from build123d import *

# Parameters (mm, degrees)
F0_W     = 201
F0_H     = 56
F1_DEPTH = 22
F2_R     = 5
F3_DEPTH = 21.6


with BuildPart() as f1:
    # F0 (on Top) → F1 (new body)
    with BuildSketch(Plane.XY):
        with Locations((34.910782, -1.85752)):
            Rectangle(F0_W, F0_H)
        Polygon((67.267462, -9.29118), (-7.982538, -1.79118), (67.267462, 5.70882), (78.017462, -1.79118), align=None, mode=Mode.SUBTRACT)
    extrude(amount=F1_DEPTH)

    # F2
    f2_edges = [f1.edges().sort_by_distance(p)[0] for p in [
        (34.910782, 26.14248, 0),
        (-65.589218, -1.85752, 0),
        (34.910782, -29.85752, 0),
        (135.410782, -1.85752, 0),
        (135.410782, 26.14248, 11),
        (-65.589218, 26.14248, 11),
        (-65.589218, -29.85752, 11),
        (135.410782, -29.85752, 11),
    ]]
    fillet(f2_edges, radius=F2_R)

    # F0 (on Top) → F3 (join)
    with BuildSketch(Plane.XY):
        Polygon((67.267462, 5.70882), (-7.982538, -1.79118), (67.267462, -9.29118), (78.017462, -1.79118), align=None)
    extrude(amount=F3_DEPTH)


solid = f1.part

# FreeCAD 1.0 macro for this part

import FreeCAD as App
import Part
import Sketcher


def edges_at(feature, points):
    """Names of the edges that pass closest to the given points."""
    edges = feature.Shape.Edges
    near = lambda p: min(range(len(edges)), key=lambda i: edges[i].distToShape(Part.Vertex(*p))[0])
    return sorted({f"Edge{near(p) + 1}" for p in points})


def add_polygon(sketch, points):
    """Adds a closed chain of lines whose ends are joined by coincident constraints."""
    first, n = sketch.GeometryCount, len(points)
    for a, b in zip(points, points[1:] + points[:1]):
        sketch.addGeometry(Part.LineSegment(App.Vector(*a, 0), App.Vector(*b, 0)), False)
    for i in range(n):
        sketch.addConstraint(Sketcher.Constraint("Coincident", first + i, 2, first + (i + 1) % n, 1))

doc = App.newDocument("Part")
params = doc.addObject("Spreadsheet::Sheet", "Params")
for row, (alias, value) in enumerate([
    ("sketch1_width", "201 mm"),
    ("sketch1_height", "56 mm"),
    ("pad1_length", "22 mm"),
    ("fillet_radius", "5 mm"),
    ("pad2_length", "21.6 mm"),
], start=1):
    params.set(f"A{row}", alias)
    params.set(f"B{row}", "=" + value)
    params.setAlias(f"B{row}", alias)

body = doc.addObject("PartDesign::Body", "Body")

sketch1 = body.newObject("Sketcher::SketchObject", "Sketch")
sketch1.AttachmentSupport = (doc.getObject("XY_Plane"), [""])
sketch1.MapMode = "FlatFace"
add_polygon(sketch1, [(-65.589218, 26.14248), (-65.589218, -29.85752), (135.410782, -29.85752), (135.410782, 26.14248)])
add_polygon(sketch1, [(78.017462, -1.79118), (67.267462, -9.29118), (-7.982538, -1.79118), (67.267462, 5.70882)])
sketch1.addConstraint(Sketcher.Constraint("Vertical", 0))
sketch1.addConstraint(Sketcher.Constraint("Horizontal", 1))
sketch1.addConstraint(Sketcher.Constraint("Vertical", 2))
sketch1.addConstraint(Sketcher.Constraint("Horizontal", 3))
sketch1.addConstraint(Sketcher.Constraint("Horizontal", 5, 2, 7, 2))
sketch1.addConstraint(Sketcher.Constraint("Vertical", 4, 2, 6, 2))
sketch1.addConstraint(Sketcher.Constraint("Equal", 5, 6))
sketch1.addConstraint(Sketcher.Constraint("DistanceX", 1, 1, 1, 2, 201.0))
sketch1.addConstraint(Sketcher.Constraint("DistanceY", 0, 2, 0, 1, 56.0))
sketch1.addConstraint(Sketcher.Constraint("DistanceY", 4, 2, 6, 2, 15.0))
sketch1.addConstraint(Sketcher.Constraint("DistanceX", 5, 2, 7, 2, 86.0))
sketch1.addConstraint(Sketcher.Constraint("DistanceX", 5, 2, 4, 2, 75.25))
sketch1.addConstraint(Sketcher.Constraint("DistanceX", 0, 2, -1, 1, 65.589218))
sketch1.addConstraint(Sketcher.Constraint("DistanceY", 0, 2, -1, 1, 29.85752))
sketch1.addConstraint(Sketcher.Constraint("DistanceX", -1, 1, 4, 2, 67.267462))
sketch1.addConstraint(Sketcher.Constraint("DistanceY", 4, 2, -1, 1, 9.29118))
sketch1.setExpression("Constraints[15]", "Params.sketch1_width")
sketch1.setExpression("Constraints[16]", "Params.sketch1_height")
pad1 = body.newObject("PartDesign::Pad", "Pad")
pad1.Profile = sketch1
pad1.setExpression("Length", "Params.pad1_length")
doc.recompute()

fillet = body.newObject("PartDesign::Fillet", "Fillet")
fillet.Base = (pad1, edges_at(pad1, [
    (34.911, 26.142, 0),
    (-65.589, -1.858, 0),
    (34.911, -29.858, 0),
    (135.411, -1.858, 0),
    (135.411, 26.142, 11),
    (-65.589, 26.142, 11),
    (-65.589, -29.858, 11),
    (135.411, -29.858, 11),
]))
fillet.setExpression("Radius", "Params.fillet_radius")

sketch2 = body.newObject("Sketcher::SketchObject", "Sketch001")
sketch2.AttachmentSupport = (doc.getObject("XY_Plane"), [""])
sketch2.MapMode = "FlatFace"
add_polygon(sketch2, [(67.267462, 5.70882), (-7.982538, -1.79118), (67.267462, -9.29118), (78.017462, -1.79118)])
sketch2.addConstraint(Sketcher.Constraint("Horizontal", 0, 2, 2, 2))
sketch2.addConstraint(Sketcher.Constraint("Vertical", 1, 2, 3, 2))
sketch2.addConstraint(Sketcher.Constraint("Equal", 0, 1))
sketch2.addConstraint(Sketcher.Constraint("DistanceX", 0, 2, 2, 2, 86.0))
sketch2.addConstraint(Sketcher.Constraint("DistanceY", 1, 2, 3, 2, 15.0))
sketch2.addConstraint(Sketcher.Constraint("DistanceX", 0, 2, 1, 2, 75.25))
sketch2.addConstraint(Sketcher.Constraint("DistanceY", 0, 2, -1, 1, 1.79118))
sketch2.addConstraint(Sketcher.Constraint("DistanceX", -1, 1, 1, 2, 67.267462))
pad2 = body.newObject("PartDesign::Pad", "Pad001")
pad2.Profile = sketch2
pad2.setExpression("Length", "Params.pad2_length")

doc.recompute()
